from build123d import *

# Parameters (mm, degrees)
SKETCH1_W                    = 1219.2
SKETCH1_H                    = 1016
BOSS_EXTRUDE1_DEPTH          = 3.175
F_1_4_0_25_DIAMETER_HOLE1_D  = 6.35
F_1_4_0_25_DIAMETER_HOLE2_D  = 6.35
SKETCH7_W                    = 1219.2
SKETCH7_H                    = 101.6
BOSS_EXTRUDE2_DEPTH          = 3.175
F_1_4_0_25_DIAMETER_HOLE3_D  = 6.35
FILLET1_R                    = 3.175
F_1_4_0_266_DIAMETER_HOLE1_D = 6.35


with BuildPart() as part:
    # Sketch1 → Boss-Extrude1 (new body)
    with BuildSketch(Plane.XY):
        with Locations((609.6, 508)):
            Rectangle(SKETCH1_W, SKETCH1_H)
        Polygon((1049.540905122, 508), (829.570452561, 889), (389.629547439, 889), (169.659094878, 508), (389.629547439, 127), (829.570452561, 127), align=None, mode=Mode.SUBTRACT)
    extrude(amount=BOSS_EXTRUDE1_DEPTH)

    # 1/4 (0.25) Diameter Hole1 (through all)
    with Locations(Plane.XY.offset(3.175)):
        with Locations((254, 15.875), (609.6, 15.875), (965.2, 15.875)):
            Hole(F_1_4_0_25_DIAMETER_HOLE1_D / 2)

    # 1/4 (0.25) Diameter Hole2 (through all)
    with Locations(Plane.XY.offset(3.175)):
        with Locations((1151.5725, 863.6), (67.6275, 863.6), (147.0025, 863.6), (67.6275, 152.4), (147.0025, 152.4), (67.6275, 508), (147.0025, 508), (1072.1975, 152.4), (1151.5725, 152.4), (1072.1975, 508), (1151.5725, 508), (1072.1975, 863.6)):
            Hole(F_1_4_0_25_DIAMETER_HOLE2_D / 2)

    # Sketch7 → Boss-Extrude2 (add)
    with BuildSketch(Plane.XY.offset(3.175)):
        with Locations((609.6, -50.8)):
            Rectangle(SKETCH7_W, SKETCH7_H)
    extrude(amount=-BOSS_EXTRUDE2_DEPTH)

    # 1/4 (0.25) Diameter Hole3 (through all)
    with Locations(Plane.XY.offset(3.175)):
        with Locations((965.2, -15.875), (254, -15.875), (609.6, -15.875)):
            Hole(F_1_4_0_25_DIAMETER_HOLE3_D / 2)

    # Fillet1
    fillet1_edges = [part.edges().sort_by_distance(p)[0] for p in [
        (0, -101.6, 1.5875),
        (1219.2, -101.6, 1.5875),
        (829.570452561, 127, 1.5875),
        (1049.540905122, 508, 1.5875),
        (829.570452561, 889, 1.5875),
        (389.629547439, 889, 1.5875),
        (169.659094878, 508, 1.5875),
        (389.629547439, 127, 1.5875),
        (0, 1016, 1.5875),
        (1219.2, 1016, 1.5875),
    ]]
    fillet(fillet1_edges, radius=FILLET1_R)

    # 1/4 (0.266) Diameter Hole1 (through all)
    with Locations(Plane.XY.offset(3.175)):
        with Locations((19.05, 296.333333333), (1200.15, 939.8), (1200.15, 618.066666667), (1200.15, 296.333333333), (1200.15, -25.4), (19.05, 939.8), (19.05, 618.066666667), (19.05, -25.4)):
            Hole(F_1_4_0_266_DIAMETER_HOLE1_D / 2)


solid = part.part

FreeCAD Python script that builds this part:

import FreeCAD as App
import Part
import Sketcher
from FreeCAD import Vector
Q = App.Units.Quantity


def edges_at(feature, points):
    """Names of the edges that pass closest to the given points."""
    edges = feature.Shape.Edges
    near = lambda p: min(range(len(edges)), key=lambda i: edges[i].distToShape(Part.Vertex(*p))[0])
    return sorted({f"Edge{near(p) + 1}" for p in points})

doc = App.newDocument("Part")
params = doc.addObject("Spreadsheet::Sheet", "Params")
for row, (alias, value) in enumerate([
    ("sketch1_width", "48 in"),
    ("sketch1_height", "40 in"),
    ("pad1_length", "0.125 in"),
    ("sketch2_diameter", "0.25 in"),
    ("hole_diameter", "0.25 in"),
    ("sketch3_diameter", "0.25 in"),
    ("hole2_diameter", "0.25 in"),
    ("sketch4_width", "48 in"),
    ("sketch4_height", "4 in"),
    ("pad2_length", "0.125 in"),
    ("sketch5_diameter", "0.25 in"),
    ("hole3_diameter", "0.25 in"),
    ("fillet_radius", "0.125 in"),
    ("sketch6_diameter", "0.25 in"),
    ("hole4_diameter", "0.25 in"),
], start=1):
    params.set(f"A{row}", alias)
    params.set(f"B{row}", "=" + value)
    params.setAlias(f"B{row}", alias)

body = doc.addObject("PartDesign::Body", "Body")

sketch1 = body.newObject("Sketcher::SketchObject", "Sketch")
sketch1.AttachmentSupport = (doc.getObject("XY_Plane"), [""])
sketch1.MapMode = "FlatFace"
sketch1.addGeometry(Part.LineSegment(Vector(0, 1016, 0), Vector(0, 0, 0)), False)
sketch1.addGeometry(Part.LineSegment(Vector(0, 0, 0), Vector(1219.2, 0, 0)), False)
sketch1.addGeometry(Part.LineSegment(Vector(1219.2, 0, 0), Vector(1219.2, 1016, 0)), False)
sketch1.addGeometry(Part.LineSegment(Vector(1219.2, 1016, 0), Vector(0, 1016, 0)), False)
sketch1.addGeometry(Part.LineSegment(Vector(829.570453, 889, 0), Vector(1049.540905, 508, 0)), False)
sketch1.addGeometry(Part.LineSegment(Vector(1049.540905, 508, 0), Vector(829.570453, 127, 0)), False)
sketch1.addGeometry(Part.LineSegment(Vector(829.570453, 127, 0), Vector(389.629547, 127, 0)), False)
sketch1.addGeometry(Part.LineSegment(Vector(389.629547, 127, 0), Vector(169.659095, 508, 0)), False)
sketch1.addGeometry(Part.LineSegment(Vector(169.659095, 508, 0), Vector(389.629547, 889, 0)), False)
sketch1.addGeometry(Part.LineSegment(Vector(389.629547, 889, 0), Vector(829.570453, 889, 0)), False)
sketch1.addConstraint(Sketcher.Constraint("Coincident", 0, 2, 1, 1))
sketch1.addConstraint(Sketcher.Constraint("Coincident", 1, 2, 2, 1))
sketch1.addConstraint(Sketcher.Constraint("Coincident", 2, 2, 3, 1))
sketch1.addConstraint(Sketcher.Constraint("Coincident", 3, 2, 0, 1))
sketch1.addConstraint(Sketcher.Constraint("Coincident", 4, 2, 5, 1))
sketch1.addConstraint(Sketcher.Constraint("Coincident", 5, 2, 6, 1))
sketch1.addConstraint(Sketcher.Constraint("Coincident", 6, 2, 7, 1))
sketch1.addConstraint(Sketcher.Constraint("Coincident", 7, 2, 8, 1))
sketch1.addConstraint(Sketcher.Constraint("Coincident", 8, 2, 9, 1))
sketch1.addConstraint(Sketcher.Constraint("Coincident", 9, 2, 4, 1))
sketch1.addConstraint(Sketcher.Constraint("Vertical", 0))
sketch1.addConstraint(Sketcher.Constraint("Horizontal", 1))
sketch1.addConstraint(Sketcher.Constraint("Vertical", 2))
sketch1.addConstraint(Sketcher.Constraint("Horizontal", 3))
sketch1.addConstraint(Sketcher.Constraint("Horizontal", 6))
sketch1.addConstraint(Sketcher.Constraint("Horizontal", 9))
sketch1.addConstraint(Sketcher.Constraint("Coincident", 0, 2, -1, 1))
sketch1.addConstraint(Sketcher.Constraint("Parallel", 4, 7))
sketch1.addConstraint(Sketcher.Constraint("Parallel", 5, 8))
sketch1.addConstraint(Sketcher.Constraint("Horizontal", 4, 2, 7, 2))
sketch1.addConstraint(Sketcher.Constraint("Vertical", 6, 2, 8, 2))
sketch1.addConstraint(Sketcher.Constraint("Vertical", 5, 2, 9, 2))
sketch1.addConstraint(Sketcher.Constraint("DistanceX", 1, 1, 1, 2, Q("48 in")))
sketch1.addConstraint(Sketcher.Constraint("DistanceY", 0, 2, 0, 1, Q("40 in")))
sketch1.addConstraint(Sketcher.Constraint("DistanceY", -1, 1, 4, 2, Q("20 in")))
sketch1.addConstraint(Sketcher.Constraint("DistanceY", -1, 1, 5, 2, Q("5 in")))
sketch1.addConstraint(Sketcher.Constraint("Angle", 4, Q("-60 deg")))
sketch1.addConstraint(Sketcher.Constraint("DistanceX", 6, 2, 6, 1, 439.940905))
sketch1.addConstraint(Sketcher.Constraint("DistanceX", -1, 1, 4, 2, 1049.540905))
sketch1.setExpression("Constraints[22]", "Params.sketch1_width")
sketch1.setExpression("Constraints[23]", "Params.sketch1_height")
pad1 = body.newObject("PartDesign::Pad", "Pad")
pad1.Profile = sketch1
pad1.setExpression("Length", "Params.pad1_length")

sketch2 = body.newObject("Sketcher::SketchObject", "Sketch001")
sketch2.AttachmentSupport = (doc.getObject("XY_Plane"), [""])
sketch2.MapMode = "FlatFace"
sketch2.AttachmentOffset = App.Placement(Vector(0, 0, 0.125 * 25.4), App.Rotation())
sketch2.addGeometry(Part.Circle(Vector(254, 15.875, 0), Vector(0, 0, 1), 3.175), False)
sketch2.addGeometry(Part.Circle(Vector(609.6, 15.875, 0), Vector(0, 0, 1), 3.175), False)
sketch2.addGeometry(Part.Circle(Vector(965.2, 15.875, 0), Vector(0, 0, 1), 3.175), False)
sketch2.addConstraint(Sketcher.Constraint("Equal", 0, 1))
sketch2.addConstraint(Sketcher.Constraint("Equal", 1, 2))
sketch2.addConstraint(Sketcher.Constraint("Horizontal", 0, 3, 1, 3))
sketch2.addConstraint(Sketcher.Constraint("Horizontal", 1, 3, 2, 3))
sketch2.addConstraint(Sketcher.Constraint("Diameter", 0, Q("0.25 in")))
sketch2.addConstraint(Sketcher.Constraint("DistanceX", -1, 1, 0, 3, Q("10 in")))
sketch2.addConstraint(Sketcher.Constraint("DistanceX", -1, 1, 1, 3, Q("24 in")))
sketch2.addConstraint(Sketcher.Constraint("DistanceX", -1, 1, 2, 3, Q("38 in")))
sketch2.addConstraint(Sketcher.Constraint("DistanceY", -1, 1, 0, 3, Q("0.625 in")))
sketch2.setExpression("Constraints[4]", "Params.sketch2_diameter")
doc.recompute()
hole = body.newObject("PartDesign::Hole", "Hole")
hole.Profile = sketch2
hole.ThreadType = "None"
hole.setExpression("Diameter", "Params.hole_diameter")
hole.DepthType = "ThroughAll"

sketch3 = body.newObject("Sketcher::SketchObject", "Sketch002")
sketch3.AttachmentSupport = (doc.getObject("XY_Plane"), [""])
sketch3.MapMode = "FlatFace"
sketch3.AttachmentOffset = App.Placement(Vector(0, 0, 0.125 * 25.4), App.Rotation())
sketch3.addGeometry(Part.Circle(Vector(1151.5725, 863.6, 0), Vector(0, 0, 1), 3.175), False)
sketch3.addGeometry(Part.Circle(Vector(67.6275, 863.6, 0), Vector(0, 0, 1), 3.175), False)
sketch3.addGeometry(Part.Circle(Vector(147.0025, 863.6, 0), Vector(0, 0, 1), 3.175), False)
sketch3.addGeometry(Part.Circle(Vector(67.6275, 152.4, 0), Vector(0, 0, 1), 3.175), False)
sketch3.addGeometry(Part.Circle(Vector(147.0025, 152.4, 0), Vector(0, 0, 1), 3.175), False)
sketch3.addGeometry(Part.Circle(Vector(67.6275, 508, 0), Vector(0, 0, 1), 3.175), False)
sketch3.addGeometry(Part.Circle(Vector(147.0025, 508, 0), Vector(0, 0, 1), 3.175), False)
sketch3.addGeometry(Part.Circle(Vector(1072.1975, 152.4, 0), Vector(0, 0, 1), 3.175), False)
sketch3.addGeometry(Part.Circle(Vector(1151.5725, 152.4, 0), Vector(0, 0, 1), 3.175), False)
sketch3.addGeometry(Part.Circle(Vector(1072.1975, 508, 0), Vector(0, 0, 1), 3.175), False)
sketch3.addGeometry(Part.Circle(Vector(1151.5725, 508, 0), Vector(0, 0, 1), 3.175), False)
sketch3.addGeometry(Part.Circle(Vector(1072.1975, 863.6, 0), Vector(0, 0, 1), 3.175), False)
sketch3.addConstraint(Sketcher.Constraint("Equal", 0, 1))
sketch3.addConstraint(Sketcher.Constraint("Equal", 1, 2))
sketch3.addConstraint(Sketcher.Constraint("Equal", 2, 3))
sketch3.addConstraint(Sketcher.Constraint("Equal", 3, 4))
sketch3.addConstraint(Sketcher.Constraint("Equal", 4, 5))
sketch3.addConstraint(Sketcher.Constraint("Equal", 5, 6))
sketch3.addConstraint(Sketcher.Constraint("Equal", 6, 7))
sketch3.addConstraint(Sketcher.Constraint("Equal", 7, 8))
sketch3.addConstraint(Sketcher.Constraint("Equal", 8, 9))
sketch3.addConstraint(Sketcher.Constraint("Equal", 9, 10))
sketch3.addConstraint(Sketcher.Constraint("Equal", 10, 11))
sketch3.addConstraint(Sketcher.Constraint("Horizontal", 0, 3, 1, 3))
sketch3.addConstraint(Sketcher.Constraint("Horizontal", 1, 3, 2, 3))
sketch3.addConstraint(Sketcher.Constraint("Horizontal", 3, 3, 4, 3))
sketch3.addConstraint(Sketcher.Constraint("Horizontal", 5, 3, 6, 3))
sketch3.addConstraint(Sketcher.Constraint("Horizontal", 4, 3, 7, 3))
sketch3.addConstraint(Sketcher.Constraint("Horizontal", 7, 3, 8, 3))
sketch3.addConstraint(Sketcher.Constraint("Horizontal", 6, 3, 9, 3))
sketch3.addConstraint(Sketcher.Constraint("Horizontal", 9, 3, 10, 3))
sketch3.addConstraint(Sketcher.Constraint("Horizontal", 2, 3, 11, 3))
sketch3.addConstraint(Sketcher.Constraint("Vertical", 1, 3, 3, 3))
sketch3.addConstraint(Sketcher.Constraint("Vertical", 2, 3, 4, 3))
sketch3.addConstraint(Sketcher.Constraint("Vertical", 3, 3, 5, 3))
sketch3.addConstraint(Sketcher.Constraint("Vertical", 4, 3, 6, 3))
sketch3.addConstraint(Sketcher.Constraint("Vertical", 0, 3, 8, 3))
sketch3.addConstraint(Sketcher.Constraint("Vertical", 7, 3, 9, 3))
sketch3.addConstraint(Sketcher.Constraint("Vertical", 8, 3, 10, 3))
sketch3.addConstraint(Sketcher.Constraint("Vertical", 9, 3, 11, 3))
sketch3.addConstraint(Sketcher.Constraint("Diameter", 0, Q("0.25 in")))
sketch3.addConstraint(Sketcher.Constraint("DistanceY", -1, 1, 0, 3, Q("34 in")))
sketch3.addConstraint(Sketcher.Constraint("DistanceY", -1, 1, 3, 3, Q("6 in")))
sketch3.addConstraint(Sketcher.Constraint("DistanceY", -1, 1, 5, 3, Q("20 in")))
sketch3.addConstraint(Sketcher.Constraint("DistanceX", 2, 3, 0, 3, Q("39.55 in")))
sketch3.addConstraint(Sketcher.Constraint("DistanceX", 3, 3, 7, 3, Q("39.55 in")))
sketch3.addConstraint(Sketcher.Constraint("DistanceX", 1, 3, 0, 3, Q("42.675 in")))
sketch3.addConstraint(Sketcher.Constraint("DistanceX", -1, 1, 0, 3, Q("45.3375 in")))
sketch3.setExpression("Constraints[28]", "Params.sketch3_diameter")
doc.recompute()
hole2 = body.newObject("PartDesign::Hole", "Hole001")
hole2.Profile = sketch3
hole2.ThreadType = "None"
hole2.setExpression("Diameter", "Params.hole2_diameter")
hole2.DepthType = "ThroughAll"

sketch4 = body.newObject("Sketcher::SketchObject", "Sketch003")
sketch4.AttachmentSupport = (doc.getObject("XY_Plane"), [""])
sketch4.MapMode = "FlatFace"
sketch4.AttachmentOffset = App.Placement(Vector(0, 0, 0.125 * 25.4), App.Rotation())
sketch4.addGeometry(Part.LineSegment(Vector(0, 0, 0), Vector(0, -101.6, 0)), False)
sketch4.addGeometry(Part.LineSegment(Vector(0, -101.6, 0), Vector(1219.2, -101.6, 0)), False)
sketch4.addGeometry(Part.LineSegment(Vector(1219.2, -101.6, 0), Vector(1219.2, 0, 0)), False)
sketch4.addGeometry(Part.LineSegment(Vector(1219.2, 0, 0), Vector(0, 0, 0)), False)
sketch4.addConstraint(Sketcher.Constraint("Coincident", 0, 2, 1, 1))
sketch4.addConstraint(Sketcher.Constraint("Coincident", 1, 2, 2, 1))
sketch4.addConstraint(Sketcher.Constraint("Coincident", 2, 2, 3, 1))
sketch4.addConstraint(Sketcher.Constraint("Coincident", 3, 2, 0, 1))
sketch4.addConstraint(Sketcher.Constraint("Vertical", 0))
sketch4.addConstraint(Sketcher.Constraint("Horizontal", 1))
sketch4.addConstraint(Sketcher.Constraint("Vertical", 2))
sketch4.addConstraint(Sketcher.Constraint("Horizontal", 3))
sketch4.addConstraint(Sketcher.Constraint("Coincident", 3, 2, -1, 1))
sketch4.addConstraint(Sketcher.Constraint("DistanceX", 1, 1, 1, 2, Q("48 in")))
sketch4.addConstraint(Sketcher.Constraint("DistanceY", 0, 2, 0, 1, Q("4 in")))
sketch4.setExpression("Constraints[9]", "Params.sketch4_width")
sketch4.setExpression("Constraints[10]", "Params.sketch4_height")
pad2 = body.newObject("PartDesign::Pad", "Pad001")
pad2.Profile = sketch4
pad2.setExpression("Length", "Params.pad2_length")
pad2.Reversed = True

sketch5 = body.newObject("Sketcher::SketchObject", "Sketch004")
sketch5.AttachmentSupport = (doc.getObject("XY_Plane"), [""])
sketch5.MapMode = "FlatFace"
sketch5.AttachmentOffset = App.Placement(Vector(0, 0, 0.125 * 25.4), App.Rotation())
sketch5.addGeometry(Part.Circle(Vector(965.2, -15.875, 0), Vector(0, 0, 1), 3.175), False)
sketch5.addGeometry(Part.Circle(Vector(254, -15.875, 0), Vector(0, 0, 1), 3.175), False)
sketch5.addGeometry(Part.Circle(Vector(609.6, -15.875, 0), Vector(0, 0, 1), 3.175), False)
sketch5.addConstraint(Sketcher.Constraint("Equal", 0, 1))
sketch5.addConstraint(Sketcher.Constraint("Equal", 1, 2))
sketch5.addConstraint(Sketcher.Constraint("Horizontal", 0, 3, 1, 3))
sketch5.addConstraint(Sketcher.Constraint("Horizontal", 1, 3, 2, 3))
sketch5.addConstraint(Sketcher.Constraint("Diameter", 0, Q("0.25 in")))
sketch5.addConstraint(Sketcher.Constraint("DistanceX", -1, 1, 0, 3, Q("38 in")))
sketch5.addConstraint(Sketcher.Constraint("DistanceX", -1, 1, 1, 3, Q("10 in")))
sketch5.addConstraint(Sketcher.Constraint("DistanceX", -1, 1, 2, 3, Q("24 in")))
sketch5.addConstraint(Sketcher.Constraint("DistanceY", 0, 3, -1, 1, Q("0.625 in")))
sketch5.setExpression("Constraints[4]", "Params.sketch5_diameter")
doc.recompute()
hole3 = body.newObject("PartDesign::Hole", "Hole002")
hole3.Profile = sketch5
hole3.ThreadType = "None"
hole3.setExpression("Diameter", "Params.hole3_diameter")
hole3.DepthType = "ThroughAll"
doc.recompute()

fillet = body.newObject("PartDesign::Fillet", "Fillet")
fillet.Base = (hole3, edges_at(hole3, [
    (0, -101.6, 1.587),
    (1219.2, -101.6, 1.587),
    (829.57, 127, 1.587),
    (1049.541, 508, 1.587),
    (829.57, 889, 1.587),
    (389.63, 889, 1.587),
    (169.659, 508, 1.587),
    (389.63, 127, 1.587),
    (0, 1016, 1.587),
    (1219.2, 1016, 1.587),
]))
fillet.setExpression("Radius", "Params.fillet_radius")

sketch6 = body.newObject("Sketcher::SketchObject", "Sketch005")
sketch6.AttachmentSupport = (doc.getObject("XY_Plane"), [""])
sketch6.MapMode = "FlatFace"
sketch6.AttachmentOffset = App.Placement(Vector(0, 0, 0.125 * 25.4), App.Rotation())
sketch6.addGeometry(Part.Circle(Vector(19.05, 296.333333, 0), Vector(0, 0, 1), 3.175), False)
sketch6.addGeometry(Part.Circle(Vector(1200.15, 939.8, 0), Vector(0, 0, 1), 3.175), False)
sketch6.addGeometry(Part.Circle(Vector(1200.15, 618.066667, 0), Vector(0, 0, 1), 3.175), False)
sketch6.addGeometry(Part.Circle(Vector(1200.15, 296.333333, 0), Vector(0, 0, 1), 3.175), False)
sketch6.addGeometry(Part.Circle(Vector(1200.15, -25.4, 0), Vector(0, 0, 1), 3.175), False)
sketch6.addGeometry(Part.Circle(Vector(19.05, 939.8, 0), Vector(0, 0, 1), 3.175), False)
sketch6.addGeometry(Part.Circle(Vector(19.05, 618.066667, 0), Vector(0, 0, 1), 3.175), False)
sketch6.addGeometry(Part.Circle(Vector(19.05, -25.4, 0), Vector(0, 0, 1), 3.175), False)
sketch6.addConstraint(Sketcher.Constraint("Equal", 0, 1))
sketch6.addConstraint(Sketcher.Constraint("Equal", 1, 2))
sketch6.addConstraint(Sketcher.Constraint("Equal", 2, 3))
sketch6.addConstraint(Sketcher.Constraint("Equal", 3, 4))
sketch6.addConstraint(Sketcher.Constraint("Equal", 4, 5))
sketch6.addConstraint(Sketcher.Constraint("Equal", 5, 6))
sketch6.addConstraint(Sketcher.Constraint("Equal", 6, 7))
sketch6.addConstraint(Sketcher.Constraint("Horizontal", 0, 3, 3, 3))
sketch6.addConstraint(Sketcher.Constraint("Horizontal", 1, 3, 5, 3))
sketch6.addConstraint(Sketcher.Constraint("Horizontal", 2, 3, 6, 3))
sketch6.addConstraint(Sketcher.Constraint("Horizontal", 4, 3, 7, 3))
sketch6.addConstraint(Sketcher.Constraint("Vertical", 1, 3, 2, 3))
sketch6.addConstraint(Sketcher.Constraint("Vertical", 2, 3, 3, 3))
sketch6.addConstraint(Sketcher.Constraint("Vertical", 3, 3, 4, 3))
sketch6.addConstraint(Sketcher.Constraint("Vertical", 0, 3, 5, 3))
sketch6.addConstraint(Sketcher.Constraint("Vertical", 5, 3, 6, 3))
sketch6.addConstraint(Sketcher.Constraint("Vertical", 6, 3, 7, 3))
sketch6.addConstraint(Sketcher.Constraint("Diameter", 0, Q("0.25 in")))
sketch6.addConstraint(Sketcher.Constraint("DistanceY", -1, 1, 1, 3, Q("37 in")))
sketch6.addConstraint(Sketcher.Constraint("DistanceY", 4, 3, -1, 1, Q("1 in")))
sketch6.addConstraint(Sketcher.Constraint("DistanceX", 0, 3, 1, 3, Q("46.5 in")))
sketch6.addConstraint(Sketcher.Constraint("DistanceX", -1, 1, 0, 3, Q("0.75 in")))
sketch6.addConstraint(Sketcher.Constraint("DistanceY", -1, 1, 0, 3, 296.333333))
sketch6.addConstraint(Sketcher.Constraint("DistanceY", -1, 1, 2, 3, 618.066667))
sketch6.setExpression("Constraints[17]", "Params.sketch6_diameter")
doc.recompute()
hole4 = body.newObject("PartDesign::Hole", "Hole003")
hole4.Profile = sketch6
hole4.ThreadType = "None"
hole4.setExpression("Diameter", "Params.hole4_diameter")
hole4.DepthType = "ThroughAll"

doc.recompute()
